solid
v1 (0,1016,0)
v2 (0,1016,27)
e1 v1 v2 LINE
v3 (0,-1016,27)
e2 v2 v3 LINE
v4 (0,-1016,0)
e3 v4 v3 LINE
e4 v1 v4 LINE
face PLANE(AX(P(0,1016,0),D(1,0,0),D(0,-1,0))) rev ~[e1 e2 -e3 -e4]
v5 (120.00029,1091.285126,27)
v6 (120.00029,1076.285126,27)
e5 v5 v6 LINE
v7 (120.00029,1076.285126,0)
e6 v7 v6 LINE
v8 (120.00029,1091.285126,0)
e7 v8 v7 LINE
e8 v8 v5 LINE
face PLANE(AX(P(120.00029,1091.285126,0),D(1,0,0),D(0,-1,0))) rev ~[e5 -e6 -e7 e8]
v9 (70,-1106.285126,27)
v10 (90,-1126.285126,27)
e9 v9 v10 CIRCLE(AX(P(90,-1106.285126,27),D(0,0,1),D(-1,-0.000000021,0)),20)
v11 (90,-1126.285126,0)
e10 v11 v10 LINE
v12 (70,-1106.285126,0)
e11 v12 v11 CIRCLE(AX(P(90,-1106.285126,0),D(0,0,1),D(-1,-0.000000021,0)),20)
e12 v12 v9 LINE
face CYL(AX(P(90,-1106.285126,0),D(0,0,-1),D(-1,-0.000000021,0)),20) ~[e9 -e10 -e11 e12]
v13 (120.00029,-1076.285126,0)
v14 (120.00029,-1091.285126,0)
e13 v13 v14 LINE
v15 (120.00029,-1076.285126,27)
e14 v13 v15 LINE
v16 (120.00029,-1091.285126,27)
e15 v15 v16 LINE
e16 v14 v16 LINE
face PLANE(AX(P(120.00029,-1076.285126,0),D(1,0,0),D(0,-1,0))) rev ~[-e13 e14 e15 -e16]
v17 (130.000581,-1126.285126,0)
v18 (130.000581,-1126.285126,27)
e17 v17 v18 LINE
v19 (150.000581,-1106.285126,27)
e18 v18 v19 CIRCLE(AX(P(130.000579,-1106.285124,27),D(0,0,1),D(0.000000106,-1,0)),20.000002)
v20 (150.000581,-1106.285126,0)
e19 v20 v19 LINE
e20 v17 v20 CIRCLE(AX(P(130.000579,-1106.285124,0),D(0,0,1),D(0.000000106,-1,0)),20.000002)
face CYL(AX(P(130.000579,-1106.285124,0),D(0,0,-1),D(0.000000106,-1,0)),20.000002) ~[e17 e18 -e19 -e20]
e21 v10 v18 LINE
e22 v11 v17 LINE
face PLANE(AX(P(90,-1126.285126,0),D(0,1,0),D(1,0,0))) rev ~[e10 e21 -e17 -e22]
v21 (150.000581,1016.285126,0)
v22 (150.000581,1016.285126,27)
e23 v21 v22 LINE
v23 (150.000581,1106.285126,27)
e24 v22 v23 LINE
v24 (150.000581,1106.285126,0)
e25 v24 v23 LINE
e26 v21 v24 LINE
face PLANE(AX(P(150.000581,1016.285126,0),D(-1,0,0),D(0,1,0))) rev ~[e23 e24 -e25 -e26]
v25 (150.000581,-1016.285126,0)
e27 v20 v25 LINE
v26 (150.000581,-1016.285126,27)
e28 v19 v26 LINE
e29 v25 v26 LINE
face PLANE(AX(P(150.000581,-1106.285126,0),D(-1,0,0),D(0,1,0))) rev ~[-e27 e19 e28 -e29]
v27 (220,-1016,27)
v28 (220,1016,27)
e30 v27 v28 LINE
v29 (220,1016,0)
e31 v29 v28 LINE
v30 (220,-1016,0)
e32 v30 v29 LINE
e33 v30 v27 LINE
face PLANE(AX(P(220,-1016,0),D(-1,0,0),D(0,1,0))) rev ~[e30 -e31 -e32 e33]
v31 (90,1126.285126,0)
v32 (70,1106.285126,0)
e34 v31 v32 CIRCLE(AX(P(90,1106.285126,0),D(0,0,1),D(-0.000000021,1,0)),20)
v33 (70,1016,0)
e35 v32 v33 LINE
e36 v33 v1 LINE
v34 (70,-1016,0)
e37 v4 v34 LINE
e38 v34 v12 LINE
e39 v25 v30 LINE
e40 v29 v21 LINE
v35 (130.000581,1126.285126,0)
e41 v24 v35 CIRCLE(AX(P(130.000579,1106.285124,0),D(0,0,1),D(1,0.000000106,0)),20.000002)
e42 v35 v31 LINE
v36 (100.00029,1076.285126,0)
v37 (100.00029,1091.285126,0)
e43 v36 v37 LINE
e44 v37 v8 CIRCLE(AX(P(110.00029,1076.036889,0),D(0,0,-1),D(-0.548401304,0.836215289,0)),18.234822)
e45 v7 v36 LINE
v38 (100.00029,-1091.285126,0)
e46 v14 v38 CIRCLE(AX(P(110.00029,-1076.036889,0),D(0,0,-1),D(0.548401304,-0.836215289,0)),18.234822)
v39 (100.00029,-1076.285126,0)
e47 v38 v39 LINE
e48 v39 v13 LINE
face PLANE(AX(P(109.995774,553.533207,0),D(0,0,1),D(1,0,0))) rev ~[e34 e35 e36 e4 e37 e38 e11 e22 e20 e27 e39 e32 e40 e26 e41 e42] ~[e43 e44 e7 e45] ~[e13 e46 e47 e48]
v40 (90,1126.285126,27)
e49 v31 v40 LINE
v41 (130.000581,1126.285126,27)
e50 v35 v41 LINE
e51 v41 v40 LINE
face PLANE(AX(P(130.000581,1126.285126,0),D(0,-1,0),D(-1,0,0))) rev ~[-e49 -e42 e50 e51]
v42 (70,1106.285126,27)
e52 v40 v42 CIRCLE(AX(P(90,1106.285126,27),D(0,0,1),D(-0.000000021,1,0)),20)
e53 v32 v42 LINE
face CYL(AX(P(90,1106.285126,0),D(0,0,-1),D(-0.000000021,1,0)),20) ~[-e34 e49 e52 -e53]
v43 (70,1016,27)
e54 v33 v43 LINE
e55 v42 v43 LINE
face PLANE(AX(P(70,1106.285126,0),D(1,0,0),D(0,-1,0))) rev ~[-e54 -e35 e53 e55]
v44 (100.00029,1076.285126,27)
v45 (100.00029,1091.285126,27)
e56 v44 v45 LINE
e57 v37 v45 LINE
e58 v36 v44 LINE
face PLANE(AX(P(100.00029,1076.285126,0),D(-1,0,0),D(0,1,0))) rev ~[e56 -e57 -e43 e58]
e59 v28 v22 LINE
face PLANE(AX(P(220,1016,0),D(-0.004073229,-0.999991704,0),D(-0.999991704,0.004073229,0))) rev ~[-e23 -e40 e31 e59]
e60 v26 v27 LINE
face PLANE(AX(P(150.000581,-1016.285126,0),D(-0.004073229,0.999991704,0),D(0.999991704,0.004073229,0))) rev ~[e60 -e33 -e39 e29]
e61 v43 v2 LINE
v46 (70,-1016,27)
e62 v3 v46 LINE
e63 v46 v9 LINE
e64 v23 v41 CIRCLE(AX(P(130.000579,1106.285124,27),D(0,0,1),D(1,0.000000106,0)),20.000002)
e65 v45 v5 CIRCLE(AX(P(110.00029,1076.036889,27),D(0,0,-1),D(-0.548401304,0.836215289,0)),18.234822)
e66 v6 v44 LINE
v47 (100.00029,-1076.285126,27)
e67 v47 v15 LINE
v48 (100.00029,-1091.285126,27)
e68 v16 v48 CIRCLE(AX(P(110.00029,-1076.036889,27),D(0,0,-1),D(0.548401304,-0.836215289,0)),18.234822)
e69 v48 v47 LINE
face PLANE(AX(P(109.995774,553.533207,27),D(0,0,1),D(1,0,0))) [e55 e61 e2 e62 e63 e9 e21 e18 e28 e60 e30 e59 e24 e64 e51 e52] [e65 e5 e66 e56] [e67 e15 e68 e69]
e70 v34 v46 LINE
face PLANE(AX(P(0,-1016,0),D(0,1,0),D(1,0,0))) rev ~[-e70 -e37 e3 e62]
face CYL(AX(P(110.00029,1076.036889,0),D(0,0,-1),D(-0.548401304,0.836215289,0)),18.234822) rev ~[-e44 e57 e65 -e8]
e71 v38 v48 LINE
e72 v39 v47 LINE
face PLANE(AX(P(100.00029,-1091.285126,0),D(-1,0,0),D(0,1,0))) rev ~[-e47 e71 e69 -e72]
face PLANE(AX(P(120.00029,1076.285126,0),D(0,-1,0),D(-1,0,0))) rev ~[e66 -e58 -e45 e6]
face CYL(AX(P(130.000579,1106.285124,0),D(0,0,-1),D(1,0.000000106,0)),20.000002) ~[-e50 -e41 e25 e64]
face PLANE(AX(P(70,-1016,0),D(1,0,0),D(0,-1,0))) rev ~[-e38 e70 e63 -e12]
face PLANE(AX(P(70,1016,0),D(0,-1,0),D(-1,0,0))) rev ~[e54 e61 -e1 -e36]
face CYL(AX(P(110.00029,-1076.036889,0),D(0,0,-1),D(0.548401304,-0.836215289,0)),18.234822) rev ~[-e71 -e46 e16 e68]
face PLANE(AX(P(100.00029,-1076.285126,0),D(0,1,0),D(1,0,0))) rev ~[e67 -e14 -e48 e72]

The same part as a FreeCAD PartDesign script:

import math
import FreeCAD as App
import Part
import Sketcher

V = App.Vector

doc = App.newDocument("Part")
params = doc.addObject("Spreadsheet::Sheet", "Params")
for row, (alias, value) in enumerate([
    ("sketch1_radius", "20 mm"),
    ("sketch1_width", "70 mm"),
    ("sketch1_width2", "20 mm"),
    ("sketch1_height", "2032 mm"),
    ("sketch1_height2", "90 mm"),
    ("pad1_length", "27 mm"),
], start=1):
    params.set(f"A{row}", alias)
    params.set(f"B{row}", "=" + value)
    params.setAlias(f"B{row}", alias)

body = doc.addObject("PartDesign::Body", "Body")

# Sketch on XY plane
sketch1 = body.newObject("Sketcher::SketchObject", "Sketch")
sketch1.AttachmentSupport = (doc.getObject("XY_Plane"), [""])
sketch1.MapMode = "FlatFace"
sketch1.addGeometry([
    Part.LineSegment(V(70, 1016, 0), V(0, 1016, 0)),  # 0
    Part.LineSegment(V(0, 1016, 0), V(0, -1016, 0)),  # 1
    Part.LineSegment(V(0, -1016, 0), V(70, -1016, 0)),  # 2
    Part.LineSegment(V(70, -1016, 0), V(70, -1106, 0)),  # 3
    Part.ArcOfCircle(Part.Circle(V(90, -1106, 0), V(0, 0, 1), 20), math.radians(-180), math.radians(-90)),  # 4
    Part.LineSegment(V(90, -1126, 0), V(130, -1126, 0)),  # 5
    Part.ArcOfCircle(Part.Circle(V(130, -1106, 0), V(0, 0, 1), 20), math.radians(-90), math.radians(0)),  # 6
    Part.LineSegment(V(150, -1106, 0), V(150, -1016, 0)),  # 7
    Part.LineSegment(V(150, -1016, 0), V(220, -1016, 0)),  # 8
    Part.LineSegment(V(220, -1016, 0), V(220, 1016, 0)),  # 9
    Part.LineSegment(V(220, 1016, 0), V(150, 1016, 0)),  # 10
    Part.LineSegment(V(150, 1016, 0), V(150, 1106, 0)),  # 11
    Part.ArcOfCircle(Part.Circle(V(130, 1106, 0), V(0, 0, 1), 20), math.radians(0), math.radians(90)),  # 12
    Part.LineSegment(V(130, 1126, 0), V(90, 1126, 0)),  # 13
    Part.ArcOfCircle(Part.Circle(V(90, 1106, 0), V(0, 0, 1), 20), math.radians(90), math.radians(180)),  # 14
    Part.LineSegment(V(70, 1106, 0), V(70, 1016, 0)),  # 15
    Part.LineSegment(V(100, -1076, 0), V(120, -1076, 0)),  # 16
    Part.LineSegment(V(120, -1076, 0), V(120, -1091, 0)),  # 17
    Part.ArcOfCircle(Part.Circle(V(110, -1076, 0), V(0, 0, 1), 18), math.radians(-123), math.radians(-57)),  # 18
    Part.LineSegment(V(100, -1091, 0), V(100, -1076, 0)),  # 19
    Part.LineSegment(V(120, 1091, 0), V(120, 1076, 0)),  # 20
    Part.LineSegment(V(120, 1076, 0), V(100, 1076, 0)),  # 21
    Part.LineSegment(V(100, 1076, 0), V(100, 1091, 0)),  # 22
    Part.ArcOfCircle(Part.Circle(V(110, 1076, 0), V(0, 0, 1), 18), math.radians(57), math.radians(123)),  # 23
], False)
sketch1.addConstraint([
    Sketcher.Constraint("Coincident", 0, 2, 1, 1),
    Sketcher.Constraint("Coincident", 1, 2, 2, 1),
    Sketcher.Constraint("Coincident", 2, 2, 3, 1),
    Sketcher.Constraint("Tangent", 3, 2, 4, 1),
    Sketcher.Constraint("Tangent", 4, 2, 5, 1),
    Sketcher.Constraint("Tangent", 5, 2, 6, 1),
    Sketcher.Constraint("Tangent", 6, 2, 7, 1),
    Sketcher.Constraint("Coincident", 7, 2, 8, 1),
    Sketcher.Constraint("Coincident", 8, 2, 9, 1),
    Sketcher.Constraint("Coincident", 9, 2, 10, 1),
    Sketcher.Constraint("Coincident", 10, 2, 11, 1),
    Sketcher.Constraint("Tangent", 11, 2, 12, 1),
    Sketcher.Constraint("Tangent", 12, 2, 13, 1),
    Sketcher.Constraint("Tangent", 13, 2, 14, 1),
    Sketcher.Constraint("Tangent", 14, 2, 15, 1),
    Sketcher.Constraint("Coincident", 15, 2, 0, 1),
    Sketcher.Constraint("Coincident", 16, 2, 17, 1),
    Sketcher.Constraint("Coincident", 17, 2, 18, 2),
    Sketcher.Constraint("Coincident", 18, 1, 19, 1),
    Sketcher.Constraint("Coincident", 19, 2, 16, 1),
    Sketcher.Constraint("Coincident", 20, 2, 21, 1),
    Sketcher.Constraint("Coincident", 21, 2, 22, 1),
    Sketcher.Constraint("Coincident", 22, 2, 23, 2),
    Sketcher.Constraint("Coincident", 23, 1, 20, 1),
    Sketcher.Constraint("Horizontal", 0),
    Sketcher.Constraint("Vertical", 1),
    Sketcher.Constraint("Horizontal", 2),
    Sketcher.Constraint("Vertical", 3),
    Sketcher.Constraint("Horizontal", 5),
    Sketcher.Constraint("Vertical", 7),
    Sketcher.Constraint("Vertical", 9),
    Sketcher.Constraint("Vertical", 11),
    Sketcher.Constraint("Horizontal", 13),
    Sketcher.Constraint("Vertical", 15),
    Sketcher.Constraint("Horizontal", 16),
    Sketcher.Constraint("Vertical", 17),
    Sketcher.Constraint("Vertical", 19),
    Sketcher.Constraint("Vertical", 20),
    Sketcher.Constraint("Horizontal", 21),
    Sketcher.Constraint("Vertical", 22),
    Sketcher.Constraint("Equal", 4, 6),
    Sketcher.Constraint("Equal", 6, 12),
    Sketcher.Constraint("Equal", 12, 14),
    Sketcher.Constraint("Equal", 18, 23),
    Sketcher.Constraint("Symmetric", 0, 2, 1, 2, -1, 1),
    Sketcher.Constraint("Symmetric", 6, 3, 12, 3, -1),
    Sketcher.Constraint("Symmetric", 18, 3, 23, 3, -1),
    Sketcher.Constraint("Symmetric", 16, 2, 20, 2, -1),
    Sketcher.Constraint("Horizontal", 2, 2, 8, 2),
    Sketcher.Constraint("Horizontal", 0, 2, 9, 2),
    Sketcher.Constraint("Horizontal", 17, 2, 18, 1),
    Sketcher.Constraint("Horizontal", 22, 2, 23, 1),
    Sketcher.Constraint("Vertical", 4, 3, 14, 3),
    Sketcher.Constraint("Equal", 7, 11),
    Sketcher.Constraint("Radius", 4, 20.0),
    Sketcher.Constraint("DistanceX", 0, 2, 0, 1, 70.0),
    Sketcher.Constraint("DistanceX", 16, 1, 16, 2, 20.0),
    Sketcher.Constraint("DistanceY", 1, 2, 1, 1, 2032.0),
    Sketcher.Constraint("DistanceY", 7, 1, 7, 2, 90.0),
    Sketcher.Constraint("DistanceY", 17, 2, 17, 1, 15.0),
    Sketcher.Constraint("Distance", 8, 70.0),
    Sketcher.Constraint("DistanceX", -1, 1, 8, 2, 220.0),
    Sketcher.Constraint("DistanceY", 4, 3, 16, 2, 30.0),
    Sketcher.Constraint("Radius", 18, 18.234822),
    Sketcher.Constraint("DistanceY", 3, 2, 3, 1, 90.285126),
    Sketcher.Constraint("DistanceX", -1, 1, 18, 3, 110.00029),
])
sketch1.setExpression("Constraints[54]", "Params.sketch1_radius")
sketch1.setExpression("Constraints[55]", "Params.sketch1_width")
sketch1.setExpression("Constraints[56]", "Params.sketch1_width2")
sketch1.setExpression("Constraints[57]", "Params.sketch1_height")
sketch1.setExpression("Constraints[58]", "Params.sketch1_height2")
pad1 = body.newObject("PartDesign::Pad", "Pad")
pad1.Profile = sketch1
pad1.setExpression("Length", "Params.pad1_length")

doc.recompute()
